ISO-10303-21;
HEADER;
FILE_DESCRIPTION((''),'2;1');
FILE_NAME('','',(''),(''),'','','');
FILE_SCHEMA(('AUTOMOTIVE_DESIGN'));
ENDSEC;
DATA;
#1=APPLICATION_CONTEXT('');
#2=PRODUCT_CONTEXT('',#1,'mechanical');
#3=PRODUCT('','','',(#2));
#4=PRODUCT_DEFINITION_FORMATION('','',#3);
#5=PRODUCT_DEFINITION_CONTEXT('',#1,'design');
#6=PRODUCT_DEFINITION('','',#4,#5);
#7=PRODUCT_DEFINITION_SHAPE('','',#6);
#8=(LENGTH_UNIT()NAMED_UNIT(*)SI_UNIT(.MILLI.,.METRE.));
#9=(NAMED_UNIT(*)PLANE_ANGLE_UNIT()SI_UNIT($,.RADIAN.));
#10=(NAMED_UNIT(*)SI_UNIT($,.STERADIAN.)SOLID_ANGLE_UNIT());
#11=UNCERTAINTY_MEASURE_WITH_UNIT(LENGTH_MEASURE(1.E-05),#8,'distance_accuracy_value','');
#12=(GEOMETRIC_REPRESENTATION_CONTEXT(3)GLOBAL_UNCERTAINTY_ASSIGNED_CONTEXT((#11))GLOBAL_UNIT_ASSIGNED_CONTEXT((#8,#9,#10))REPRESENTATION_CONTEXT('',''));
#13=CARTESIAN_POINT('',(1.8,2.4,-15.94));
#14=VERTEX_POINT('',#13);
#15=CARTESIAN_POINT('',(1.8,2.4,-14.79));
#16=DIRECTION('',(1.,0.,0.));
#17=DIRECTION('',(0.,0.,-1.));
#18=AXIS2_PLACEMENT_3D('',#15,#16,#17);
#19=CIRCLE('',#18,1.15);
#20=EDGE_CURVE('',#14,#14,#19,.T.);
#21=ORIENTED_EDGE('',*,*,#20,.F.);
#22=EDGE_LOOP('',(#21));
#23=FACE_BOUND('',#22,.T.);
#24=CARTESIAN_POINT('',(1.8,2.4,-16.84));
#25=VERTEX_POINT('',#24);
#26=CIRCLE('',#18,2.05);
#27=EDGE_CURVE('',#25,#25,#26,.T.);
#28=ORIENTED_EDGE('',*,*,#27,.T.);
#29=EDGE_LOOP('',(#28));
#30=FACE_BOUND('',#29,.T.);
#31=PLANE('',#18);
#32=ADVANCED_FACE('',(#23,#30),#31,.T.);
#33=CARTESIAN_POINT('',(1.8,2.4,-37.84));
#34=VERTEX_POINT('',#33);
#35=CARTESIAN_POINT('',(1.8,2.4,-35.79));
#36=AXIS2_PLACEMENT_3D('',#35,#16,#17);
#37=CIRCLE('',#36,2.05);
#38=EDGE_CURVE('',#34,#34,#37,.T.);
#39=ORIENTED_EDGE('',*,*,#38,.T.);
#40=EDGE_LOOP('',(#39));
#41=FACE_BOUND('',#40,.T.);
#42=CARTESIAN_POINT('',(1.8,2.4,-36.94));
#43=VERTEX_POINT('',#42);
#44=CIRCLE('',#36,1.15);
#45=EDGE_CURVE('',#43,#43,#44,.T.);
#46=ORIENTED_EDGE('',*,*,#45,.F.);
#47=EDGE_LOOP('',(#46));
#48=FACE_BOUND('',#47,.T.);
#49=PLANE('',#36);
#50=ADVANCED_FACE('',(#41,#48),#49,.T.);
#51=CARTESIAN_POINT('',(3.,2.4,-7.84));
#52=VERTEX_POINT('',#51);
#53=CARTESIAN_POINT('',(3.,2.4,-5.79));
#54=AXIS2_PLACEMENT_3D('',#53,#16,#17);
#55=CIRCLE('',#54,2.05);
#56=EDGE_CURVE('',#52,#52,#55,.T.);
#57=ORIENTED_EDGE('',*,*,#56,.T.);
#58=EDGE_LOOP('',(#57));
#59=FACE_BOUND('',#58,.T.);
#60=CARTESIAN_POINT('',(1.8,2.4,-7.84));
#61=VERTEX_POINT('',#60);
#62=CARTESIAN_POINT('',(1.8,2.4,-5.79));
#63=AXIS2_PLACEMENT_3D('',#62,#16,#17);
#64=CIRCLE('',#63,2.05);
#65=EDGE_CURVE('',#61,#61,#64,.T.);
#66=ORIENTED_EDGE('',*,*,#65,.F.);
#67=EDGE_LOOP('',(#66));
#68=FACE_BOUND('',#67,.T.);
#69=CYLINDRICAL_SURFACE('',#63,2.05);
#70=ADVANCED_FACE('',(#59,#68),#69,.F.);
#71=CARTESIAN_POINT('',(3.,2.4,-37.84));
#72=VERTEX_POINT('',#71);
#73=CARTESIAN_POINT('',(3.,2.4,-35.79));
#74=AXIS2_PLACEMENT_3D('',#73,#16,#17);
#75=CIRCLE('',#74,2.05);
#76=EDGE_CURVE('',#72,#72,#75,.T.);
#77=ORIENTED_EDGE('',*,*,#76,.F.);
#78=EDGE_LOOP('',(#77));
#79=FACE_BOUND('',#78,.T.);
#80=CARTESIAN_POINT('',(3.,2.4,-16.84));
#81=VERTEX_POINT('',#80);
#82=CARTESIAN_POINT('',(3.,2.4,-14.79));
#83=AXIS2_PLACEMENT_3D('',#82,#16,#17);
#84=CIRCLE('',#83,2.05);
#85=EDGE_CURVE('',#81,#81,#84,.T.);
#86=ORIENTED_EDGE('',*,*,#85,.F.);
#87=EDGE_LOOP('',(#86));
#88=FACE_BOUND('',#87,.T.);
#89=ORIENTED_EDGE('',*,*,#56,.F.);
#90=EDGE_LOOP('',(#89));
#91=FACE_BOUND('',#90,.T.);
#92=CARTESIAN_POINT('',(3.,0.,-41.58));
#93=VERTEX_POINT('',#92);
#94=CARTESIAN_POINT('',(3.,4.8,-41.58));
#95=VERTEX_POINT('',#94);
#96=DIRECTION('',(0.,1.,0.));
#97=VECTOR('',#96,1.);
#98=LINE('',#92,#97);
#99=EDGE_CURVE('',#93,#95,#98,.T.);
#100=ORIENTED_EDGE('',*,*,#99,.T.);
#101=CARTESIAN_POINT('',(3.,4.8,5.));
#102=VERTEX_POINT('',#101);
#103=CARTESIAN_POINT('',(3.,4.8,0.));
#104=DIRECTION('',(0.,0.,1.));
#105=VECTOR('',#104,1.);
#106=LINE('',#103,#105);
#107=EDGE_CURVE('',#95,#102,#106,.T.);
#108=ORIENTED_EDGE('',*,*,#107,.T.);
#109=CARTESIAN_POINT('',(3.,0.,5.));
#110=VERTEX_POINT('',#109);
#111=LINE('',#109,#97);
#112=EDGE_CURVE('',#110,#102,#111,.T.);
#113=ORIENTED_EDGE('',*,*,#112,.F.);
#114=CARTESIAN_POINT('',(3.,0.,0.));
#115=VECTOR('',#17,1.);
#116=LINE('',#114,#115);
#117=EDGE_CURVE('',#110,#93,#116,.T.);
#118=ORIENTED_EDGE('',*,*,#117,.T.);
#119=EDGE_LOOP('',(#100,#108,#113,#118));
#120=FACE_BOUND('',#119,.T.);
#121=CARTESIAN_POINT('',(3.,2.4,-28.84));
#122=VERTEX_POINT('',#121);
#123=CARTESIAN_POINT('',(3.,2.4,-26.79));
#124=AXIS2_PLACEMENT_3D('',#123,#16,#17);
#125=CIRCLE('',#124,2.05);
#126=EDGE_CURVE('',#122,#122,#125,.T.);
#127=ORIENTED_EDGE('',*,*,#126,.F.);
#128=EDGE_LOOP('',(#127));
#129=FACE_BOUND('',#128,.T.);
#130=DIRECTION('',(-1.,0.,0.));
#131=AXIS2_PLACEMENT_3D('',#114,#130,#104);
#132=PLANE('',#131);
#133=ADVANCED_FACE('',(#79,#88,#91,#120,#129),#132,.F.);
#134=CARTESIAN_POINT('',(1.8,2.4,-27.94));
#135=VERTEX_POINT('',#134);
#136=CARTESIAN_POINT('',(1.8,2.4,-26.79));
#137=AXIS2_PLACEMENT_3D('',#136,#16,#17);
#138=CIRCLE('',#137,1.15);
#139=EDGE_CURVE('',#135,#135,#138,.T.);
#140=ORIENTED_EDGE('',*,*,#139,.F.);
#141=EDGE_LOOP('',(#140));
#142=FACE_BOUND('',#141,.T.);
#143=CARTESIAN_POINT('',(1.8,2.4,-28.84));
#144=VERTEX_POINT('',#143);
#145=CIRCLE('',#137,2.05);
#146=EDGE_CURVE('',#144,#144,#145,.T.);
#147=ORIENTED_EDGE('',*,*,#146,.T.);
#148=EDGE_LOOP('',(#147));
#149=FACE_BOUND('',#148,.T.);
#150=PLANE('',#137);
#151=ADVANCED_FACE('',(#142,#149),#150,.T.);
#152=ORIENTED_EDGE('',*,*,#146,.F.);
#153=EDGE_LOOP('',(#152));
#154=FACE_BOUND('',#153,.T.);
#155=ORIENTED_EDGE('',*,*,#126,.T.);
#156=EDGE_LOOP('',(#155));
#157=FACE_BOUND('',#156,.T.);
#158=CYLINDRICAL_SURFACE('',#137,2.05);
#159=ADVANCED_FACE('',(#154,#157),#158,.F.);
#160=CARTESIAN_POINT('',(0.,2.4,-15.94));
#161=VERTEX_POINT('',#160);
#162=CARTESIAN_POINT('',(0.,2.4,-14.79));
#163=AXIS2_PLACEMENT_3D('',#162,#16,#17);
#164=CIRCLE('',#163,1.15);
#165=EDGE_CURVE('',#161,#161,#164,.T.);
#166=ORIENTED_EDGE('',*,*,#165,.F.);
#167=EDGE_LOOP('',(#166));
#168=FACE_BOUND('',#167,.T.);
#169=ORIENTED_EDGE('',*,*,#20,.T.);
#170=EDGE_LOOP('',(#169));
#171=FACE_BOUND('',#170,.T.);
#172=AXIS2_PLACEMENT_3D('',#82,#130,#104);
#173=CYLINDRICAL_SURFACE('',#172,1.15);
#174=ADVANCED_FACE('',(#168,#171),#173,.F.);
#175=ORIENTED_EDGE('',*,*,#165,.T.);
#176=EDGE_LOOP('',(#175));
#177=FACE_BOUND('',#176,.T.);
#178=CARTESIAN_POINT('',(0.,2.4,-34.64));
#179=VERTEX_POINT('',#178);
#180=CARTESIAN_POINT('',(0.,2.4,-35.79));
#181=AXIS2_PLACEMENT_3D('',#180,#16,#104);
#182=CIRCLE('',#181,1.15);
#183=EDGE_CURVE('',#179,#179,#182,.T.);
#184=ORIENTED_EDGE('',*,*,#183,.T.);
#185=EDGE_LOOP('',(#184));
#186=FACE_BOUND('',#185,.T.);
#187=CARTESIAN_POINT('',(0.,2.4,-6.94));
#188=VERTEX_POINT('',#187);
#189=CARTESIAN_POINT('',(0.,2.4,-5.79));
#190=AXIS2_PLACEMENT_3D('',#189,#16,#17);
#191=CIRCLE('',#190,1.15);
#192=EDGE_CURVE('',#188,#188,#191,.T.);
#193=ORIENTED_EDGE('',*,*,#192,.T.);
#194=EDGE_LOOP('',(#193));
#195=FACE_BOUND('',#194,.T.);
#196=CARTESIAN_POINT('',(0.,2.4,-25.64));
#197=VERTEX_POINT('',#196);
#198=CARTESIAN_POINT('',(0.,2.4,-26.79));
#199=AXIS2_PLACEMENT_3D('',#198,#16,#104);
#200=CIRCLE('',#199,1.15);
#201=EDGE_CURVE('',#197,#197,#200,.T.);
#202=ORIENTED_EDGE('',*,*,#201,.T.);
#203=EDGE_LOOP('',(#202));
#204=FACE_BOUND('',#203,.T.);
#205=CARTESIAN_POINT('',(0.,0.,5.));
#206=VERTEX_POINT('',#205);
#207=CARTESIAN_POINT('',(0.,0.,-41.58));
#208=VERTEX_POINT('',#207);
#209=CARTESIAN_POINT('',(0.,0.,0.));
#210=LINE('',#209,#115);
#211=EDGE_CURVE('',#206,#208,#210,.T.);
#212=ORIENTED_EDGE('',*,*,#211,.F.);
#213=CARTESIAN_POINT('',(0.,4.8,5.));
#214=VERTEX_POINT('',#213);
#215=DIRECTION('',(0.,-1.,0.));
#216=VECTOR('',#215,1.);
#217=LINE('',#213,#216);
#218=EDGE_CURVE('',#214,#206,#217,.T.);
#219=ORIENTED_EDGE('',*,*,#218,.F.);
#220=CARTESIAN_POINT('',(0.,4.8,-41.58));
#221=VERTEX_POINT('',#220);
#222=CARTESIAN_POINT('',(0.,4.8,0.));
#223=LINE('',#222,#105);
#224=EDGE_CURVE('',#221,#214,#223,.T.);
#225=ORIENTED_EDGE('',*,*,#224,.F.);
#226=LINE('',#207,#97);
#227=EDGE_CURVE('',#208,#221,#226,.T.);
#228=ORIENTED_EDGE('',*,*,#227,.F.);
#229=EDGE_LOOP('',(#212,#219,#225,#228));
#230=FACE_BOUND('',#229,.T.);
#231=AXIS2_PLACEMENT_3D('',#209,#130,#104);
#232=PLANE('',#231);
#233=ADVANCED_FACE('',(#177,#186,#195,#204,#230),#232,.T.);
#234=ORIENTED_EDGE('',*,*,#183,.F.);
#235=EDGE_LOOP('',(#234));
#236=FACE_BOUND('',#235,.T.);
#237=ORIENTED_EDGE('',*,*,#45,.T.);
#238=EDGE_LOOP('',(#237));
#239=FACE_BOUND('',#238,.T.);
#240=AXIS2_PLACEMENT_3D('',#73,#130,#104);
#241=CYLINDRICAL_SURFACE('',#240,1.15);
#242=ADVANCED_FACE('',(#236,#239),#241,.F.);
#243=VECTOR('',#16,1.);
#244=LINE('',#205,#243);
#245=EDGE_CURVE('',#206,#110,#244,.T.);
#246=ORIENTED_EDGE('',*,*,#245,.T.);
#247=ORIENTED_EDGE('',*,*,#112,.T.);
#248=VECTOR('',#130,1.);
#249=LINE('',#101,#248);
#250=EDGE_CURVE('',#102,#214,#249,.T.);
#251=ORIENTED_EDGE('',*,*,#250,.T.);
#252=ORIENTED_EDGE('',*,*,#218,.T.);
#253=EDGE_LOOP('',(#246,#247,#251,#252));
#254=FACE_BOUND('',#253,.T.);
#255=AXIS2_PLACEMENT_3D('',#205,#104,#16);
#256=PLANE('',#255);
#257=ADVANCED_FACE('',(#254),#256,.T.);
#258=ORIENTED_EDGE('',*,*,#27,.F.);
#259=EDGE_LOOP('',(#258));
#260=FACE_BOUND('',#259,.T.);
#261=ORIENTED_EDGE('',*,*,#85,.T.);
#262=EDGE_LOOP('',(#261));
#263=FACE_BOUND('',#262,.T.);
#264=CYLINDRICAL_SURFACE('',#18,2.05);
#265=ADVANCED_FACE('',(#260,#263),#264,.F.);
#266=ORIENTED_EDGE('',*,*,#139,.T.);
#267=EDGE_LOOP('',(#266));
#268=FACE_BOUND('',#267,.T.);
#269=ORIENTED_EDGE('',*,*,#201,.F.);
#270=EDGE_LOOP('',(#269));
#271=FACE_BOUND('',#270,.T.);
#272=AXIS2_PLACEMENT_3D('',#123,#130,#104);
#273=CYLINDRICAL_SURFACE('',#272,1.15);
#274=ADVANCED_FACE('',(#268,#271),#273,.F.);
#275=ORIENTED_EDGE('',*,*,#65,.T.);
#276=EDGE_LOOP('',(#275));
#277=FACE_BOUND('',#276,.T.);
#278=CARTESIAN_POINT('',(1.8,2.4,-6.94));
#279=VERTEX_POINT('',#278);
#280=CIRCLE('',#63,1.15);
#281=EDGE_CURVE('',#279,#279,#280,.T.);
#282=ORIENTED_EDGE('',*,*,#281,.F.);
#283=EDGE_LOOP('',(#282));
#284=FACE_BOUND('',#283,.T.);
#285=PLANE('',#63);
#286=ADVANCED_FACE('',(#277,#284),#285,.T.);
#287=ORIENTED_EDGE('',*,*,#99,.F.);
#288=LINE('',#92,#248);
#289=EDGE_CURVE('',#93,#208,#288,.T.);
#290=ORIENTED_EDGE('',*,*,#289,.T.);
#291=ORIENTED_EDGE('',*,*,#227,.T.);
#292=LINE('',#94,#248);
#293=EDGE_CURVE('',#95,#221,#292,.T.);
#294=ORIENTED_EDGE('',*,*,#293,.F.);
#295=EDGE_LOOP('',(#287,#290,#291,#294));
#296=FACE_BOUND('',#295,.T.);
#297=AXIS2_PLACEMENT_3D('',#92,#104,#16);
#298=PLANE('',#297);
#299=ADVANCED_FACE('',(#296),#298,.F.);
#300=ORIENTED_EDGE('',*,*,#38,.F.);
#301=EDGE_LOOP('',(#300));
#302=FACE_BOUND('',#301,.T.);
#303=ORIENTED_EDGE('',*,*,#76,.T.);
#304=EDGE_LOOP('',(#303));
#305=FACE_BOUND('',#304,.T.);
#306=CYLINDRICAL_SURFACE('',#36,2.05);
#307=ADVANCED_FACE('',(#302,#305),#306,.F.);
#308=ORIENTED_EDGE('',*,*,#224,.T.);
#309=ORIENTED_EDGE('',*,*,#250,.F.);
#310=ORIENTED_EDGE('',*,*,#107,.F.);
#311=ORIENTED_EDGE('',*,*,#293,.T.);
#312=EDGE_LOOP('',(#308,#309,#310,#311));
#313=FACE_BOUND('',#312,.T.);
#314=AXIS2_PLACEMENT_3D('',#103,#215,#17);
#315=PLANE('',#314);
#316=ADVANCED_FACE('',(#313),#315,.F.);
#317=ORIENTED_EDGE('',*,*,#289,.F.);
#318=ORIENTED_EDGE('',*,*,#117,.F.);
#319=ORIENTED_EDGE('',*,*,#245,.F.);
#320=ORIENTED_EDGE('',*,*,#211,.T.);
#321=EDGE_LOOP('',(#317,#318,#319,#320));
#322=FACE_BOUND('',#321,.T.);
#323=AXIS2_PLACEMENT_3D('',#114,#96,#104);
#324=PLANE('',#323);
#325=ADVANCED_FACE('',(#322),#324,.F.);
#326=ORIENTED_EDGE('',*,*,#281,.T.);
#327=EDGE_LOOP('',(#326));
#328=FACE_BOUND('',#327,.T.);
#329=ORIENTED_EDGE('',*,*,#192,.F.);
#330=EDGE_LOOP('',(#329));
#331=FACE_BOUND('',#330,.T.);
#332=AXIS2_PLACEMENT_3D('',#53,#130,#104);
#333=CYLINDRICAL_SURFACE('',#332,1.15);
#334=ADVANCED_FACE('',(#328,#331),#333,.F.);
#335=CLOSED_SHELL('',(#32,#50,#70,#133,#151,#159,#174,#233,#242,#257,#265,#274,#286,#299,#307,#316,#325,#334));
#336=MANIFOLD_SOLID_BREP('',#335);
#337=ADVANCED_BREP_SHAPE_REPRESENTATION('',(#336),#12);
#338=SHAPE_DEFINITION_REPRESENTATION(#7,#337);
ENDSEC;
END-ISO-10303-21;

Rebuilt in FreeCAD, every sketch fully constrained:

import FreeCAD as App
import Part
import Sketcher
from FreeCAD import Vector


def add_polygon(sketch, points):
    """Adds a closed chain of lines whose ends are joined by coincident constraints."""
    first, n = sketch.GeometryCount, len(points)
    for a, b in zip(points, points[1:] + points[:1]):
        sketch.addGeometry(Part.LineSegment(App.Vector(*a, 0), App.Vector(*b, 0)), False)
    for i in range(n):
        sketch.addConstraint(Sketcher.Constraint("Coincident", first + i, 2, first + (i + 1) % n, 1))

doc = App.newDocument("Part")
body = doc.addObject("PartDesign::Body", "Body")

sketch1 = body.newObject("Sketcher::SketchObject", "Sketch")
sketch1.AttachmentSupport = (doc.getObject("YZ_Plane"), [""])
sketch1.MapMode = "FlatFace"
add_polygon(sketch1, [(4.8, 0), (0, 0), (0, -41.58), (4.8, -41.58)])
sketch1.addGeometry(Part.Circle(Vector(2.4, -5.79, 0), Vector(0, 0, 1), 1.15), False)
sketch1.addGeometry(Part.Circle(Vector(2.4, -14.79, 0), Vector(0, 0, 1), 1.15), False)
sketch1.addGeometry(Part.Circle(Vector(2.4, -26.79, 0), Vector(0, 0, 1), 1.15), False)
sketch1.addGeometry(Part.Circle(Vector(2.4, -35.79, 0), Vector(0, 0, 1), 1.15), False)
sketch1.addConstraint([
    Sketcher.Constraint("Horizontal", 0),
    Sketcher.Constraint("Vertical", 1),
    Sketcher.Constraint("Horizontal", 2),
    Sketcher.Constraint("Vertical", 3),
    Sketcher.Constraint("Coincident", 0, 2, -1, 1),
    Sketcher.Constraint("Equal", 4, 5),
    Sketcher.Constraint("Equal", 5, 6),
    Sketcher.Constraint("Equal", 6, 7),
    Sketcher.Constraint("Vertical", 4, 3, 5, 3),
    Sketcher.Constraint("Vertical", 5, 3, 6, 3),
    Sketcher.Constraint("Vertical", 6, 3, 7, 3),
    Sketcher.Constraint("Diameter", 4, 2.3),
    Sketcher.Constraint("DistanceX", 0, 2, 0, 1, 4.8),
    Sketcher.Constraint("DistanceY", 5, 3, 4, 3, 9.0),
    Sketcher.Constraint("DistanceY", 6, 3, 5, 3, 12.0),
    Sketcher.Constraint("DistanceY", 7, 3, 6, 3, 9.0),
    Sketcher.Constraint("DistanceY", 1, 2, 1, 1, 41.58),
    Sketcher.Constraint("DistanceX", -1, 1, 4, 3, 2.4),
    Sketcher.Constraint("DistanceY", 4, 3, -1, 1, 5.79),
])
pad1 = body.newObject("PartDesign::Pad", "Pad")
pad1.Profile = sketch1
pad1.Length = 3

sketch2 = body.newObject("Sketcher::SketchObject", "Sketch001")
sketch2.AttachmentSupport = (doc.getObject("YZ_Plane"), [""])
sketch2.MapMode = "FlatFace"
sketch2.AttachmentOffset = App.Placement(Vector(0, 0, 3), App.Rotation())
sketch2.addGeometry([
    Part.Circle(Vector(2.4, -5.79, 0), Vector(0, 0, 1), 2.05),
    Part.Circle(Vector(2.4, -14.79, 0), Vector(0, 0, 1), 2.05),
    Part.Circle(Vector(2.4, -26.79, 0), Vector(0, 0, 1), 2.05),
    Part.Circle(Vector(2.4, -35.79, 0), Vector(0, 0, 1), 2.05),
], False)
sketch2.addConstraint([
    Sketcher.Constraint("Equal", 0, 1),
    Sketcher.Constraint("Equal", 1, 2),
    Sketcher.Constraint("Equal", 2, 3),
    Sketcher.Constraint("Vertical", 0, 3, 1, 3),
    Sketcher.Constraint("Vertical", 1, 3, 2, 3),
    Sketcher.Constraint("Vertical", 2, 3, 3, 3),
    Sketcher.Constraint("Diameter", 0, 4.1),
    Sketcher.Constraint("DistanceY", 1, 3, 0, 3, 9.0),
    Sketcher.Constraint("DistanceY", 2, 3, 1, 3, 12.0),
    Sketcher.Constraint("DistanceY", 3, 3, 2, 3, 9.0),
    Sketcher.Constraint("DistanceX", -1, 1, 0, 3, 2.4),
    Sketcher.Constraint("DistanceY", 0, 3, -1, 1, 5.79),
])
pocket1 = body.newObject("PartDesign::Pocket", "Pocket")
pocket1.Profile = sketch2
pocket1.Length = 1.2

sketch3 = body.newObject("Sketcher::SketchObject", "Sketch002")
sketch3.AttachmentSupport = (doc.getObject("XY_Plane"), [""])
sketch3.MapMode = "FlatFace"
add_polygon(sketch3, [(0, 4.8), (0, 0), (3, 0), (3, 4.8)])
sketch3.addConstraint([
    Sketcher.Constraint("Vertical", 0),
    Sketcher.Constraint("Horizontal", 1),
    Sketcher.Constraint("Vertical", 2),
    Sketcher.Constraint("Horizontal", 3),
    Sketcher.Constraint("Coincident", 0, 2, -1, 1),
    Sketcher.Constraint("DistanceX", 1, 1, 1, 2, 3.0),
    Sketcher.Constraint("DistanceY", 0, 2, 0, 1, 4.8),
])
pad2 = body.newObject("PartDesign::Pad", "Pad001")
pad2.Profile = sketch3
pad2.Length = 5

doc.recompute()
